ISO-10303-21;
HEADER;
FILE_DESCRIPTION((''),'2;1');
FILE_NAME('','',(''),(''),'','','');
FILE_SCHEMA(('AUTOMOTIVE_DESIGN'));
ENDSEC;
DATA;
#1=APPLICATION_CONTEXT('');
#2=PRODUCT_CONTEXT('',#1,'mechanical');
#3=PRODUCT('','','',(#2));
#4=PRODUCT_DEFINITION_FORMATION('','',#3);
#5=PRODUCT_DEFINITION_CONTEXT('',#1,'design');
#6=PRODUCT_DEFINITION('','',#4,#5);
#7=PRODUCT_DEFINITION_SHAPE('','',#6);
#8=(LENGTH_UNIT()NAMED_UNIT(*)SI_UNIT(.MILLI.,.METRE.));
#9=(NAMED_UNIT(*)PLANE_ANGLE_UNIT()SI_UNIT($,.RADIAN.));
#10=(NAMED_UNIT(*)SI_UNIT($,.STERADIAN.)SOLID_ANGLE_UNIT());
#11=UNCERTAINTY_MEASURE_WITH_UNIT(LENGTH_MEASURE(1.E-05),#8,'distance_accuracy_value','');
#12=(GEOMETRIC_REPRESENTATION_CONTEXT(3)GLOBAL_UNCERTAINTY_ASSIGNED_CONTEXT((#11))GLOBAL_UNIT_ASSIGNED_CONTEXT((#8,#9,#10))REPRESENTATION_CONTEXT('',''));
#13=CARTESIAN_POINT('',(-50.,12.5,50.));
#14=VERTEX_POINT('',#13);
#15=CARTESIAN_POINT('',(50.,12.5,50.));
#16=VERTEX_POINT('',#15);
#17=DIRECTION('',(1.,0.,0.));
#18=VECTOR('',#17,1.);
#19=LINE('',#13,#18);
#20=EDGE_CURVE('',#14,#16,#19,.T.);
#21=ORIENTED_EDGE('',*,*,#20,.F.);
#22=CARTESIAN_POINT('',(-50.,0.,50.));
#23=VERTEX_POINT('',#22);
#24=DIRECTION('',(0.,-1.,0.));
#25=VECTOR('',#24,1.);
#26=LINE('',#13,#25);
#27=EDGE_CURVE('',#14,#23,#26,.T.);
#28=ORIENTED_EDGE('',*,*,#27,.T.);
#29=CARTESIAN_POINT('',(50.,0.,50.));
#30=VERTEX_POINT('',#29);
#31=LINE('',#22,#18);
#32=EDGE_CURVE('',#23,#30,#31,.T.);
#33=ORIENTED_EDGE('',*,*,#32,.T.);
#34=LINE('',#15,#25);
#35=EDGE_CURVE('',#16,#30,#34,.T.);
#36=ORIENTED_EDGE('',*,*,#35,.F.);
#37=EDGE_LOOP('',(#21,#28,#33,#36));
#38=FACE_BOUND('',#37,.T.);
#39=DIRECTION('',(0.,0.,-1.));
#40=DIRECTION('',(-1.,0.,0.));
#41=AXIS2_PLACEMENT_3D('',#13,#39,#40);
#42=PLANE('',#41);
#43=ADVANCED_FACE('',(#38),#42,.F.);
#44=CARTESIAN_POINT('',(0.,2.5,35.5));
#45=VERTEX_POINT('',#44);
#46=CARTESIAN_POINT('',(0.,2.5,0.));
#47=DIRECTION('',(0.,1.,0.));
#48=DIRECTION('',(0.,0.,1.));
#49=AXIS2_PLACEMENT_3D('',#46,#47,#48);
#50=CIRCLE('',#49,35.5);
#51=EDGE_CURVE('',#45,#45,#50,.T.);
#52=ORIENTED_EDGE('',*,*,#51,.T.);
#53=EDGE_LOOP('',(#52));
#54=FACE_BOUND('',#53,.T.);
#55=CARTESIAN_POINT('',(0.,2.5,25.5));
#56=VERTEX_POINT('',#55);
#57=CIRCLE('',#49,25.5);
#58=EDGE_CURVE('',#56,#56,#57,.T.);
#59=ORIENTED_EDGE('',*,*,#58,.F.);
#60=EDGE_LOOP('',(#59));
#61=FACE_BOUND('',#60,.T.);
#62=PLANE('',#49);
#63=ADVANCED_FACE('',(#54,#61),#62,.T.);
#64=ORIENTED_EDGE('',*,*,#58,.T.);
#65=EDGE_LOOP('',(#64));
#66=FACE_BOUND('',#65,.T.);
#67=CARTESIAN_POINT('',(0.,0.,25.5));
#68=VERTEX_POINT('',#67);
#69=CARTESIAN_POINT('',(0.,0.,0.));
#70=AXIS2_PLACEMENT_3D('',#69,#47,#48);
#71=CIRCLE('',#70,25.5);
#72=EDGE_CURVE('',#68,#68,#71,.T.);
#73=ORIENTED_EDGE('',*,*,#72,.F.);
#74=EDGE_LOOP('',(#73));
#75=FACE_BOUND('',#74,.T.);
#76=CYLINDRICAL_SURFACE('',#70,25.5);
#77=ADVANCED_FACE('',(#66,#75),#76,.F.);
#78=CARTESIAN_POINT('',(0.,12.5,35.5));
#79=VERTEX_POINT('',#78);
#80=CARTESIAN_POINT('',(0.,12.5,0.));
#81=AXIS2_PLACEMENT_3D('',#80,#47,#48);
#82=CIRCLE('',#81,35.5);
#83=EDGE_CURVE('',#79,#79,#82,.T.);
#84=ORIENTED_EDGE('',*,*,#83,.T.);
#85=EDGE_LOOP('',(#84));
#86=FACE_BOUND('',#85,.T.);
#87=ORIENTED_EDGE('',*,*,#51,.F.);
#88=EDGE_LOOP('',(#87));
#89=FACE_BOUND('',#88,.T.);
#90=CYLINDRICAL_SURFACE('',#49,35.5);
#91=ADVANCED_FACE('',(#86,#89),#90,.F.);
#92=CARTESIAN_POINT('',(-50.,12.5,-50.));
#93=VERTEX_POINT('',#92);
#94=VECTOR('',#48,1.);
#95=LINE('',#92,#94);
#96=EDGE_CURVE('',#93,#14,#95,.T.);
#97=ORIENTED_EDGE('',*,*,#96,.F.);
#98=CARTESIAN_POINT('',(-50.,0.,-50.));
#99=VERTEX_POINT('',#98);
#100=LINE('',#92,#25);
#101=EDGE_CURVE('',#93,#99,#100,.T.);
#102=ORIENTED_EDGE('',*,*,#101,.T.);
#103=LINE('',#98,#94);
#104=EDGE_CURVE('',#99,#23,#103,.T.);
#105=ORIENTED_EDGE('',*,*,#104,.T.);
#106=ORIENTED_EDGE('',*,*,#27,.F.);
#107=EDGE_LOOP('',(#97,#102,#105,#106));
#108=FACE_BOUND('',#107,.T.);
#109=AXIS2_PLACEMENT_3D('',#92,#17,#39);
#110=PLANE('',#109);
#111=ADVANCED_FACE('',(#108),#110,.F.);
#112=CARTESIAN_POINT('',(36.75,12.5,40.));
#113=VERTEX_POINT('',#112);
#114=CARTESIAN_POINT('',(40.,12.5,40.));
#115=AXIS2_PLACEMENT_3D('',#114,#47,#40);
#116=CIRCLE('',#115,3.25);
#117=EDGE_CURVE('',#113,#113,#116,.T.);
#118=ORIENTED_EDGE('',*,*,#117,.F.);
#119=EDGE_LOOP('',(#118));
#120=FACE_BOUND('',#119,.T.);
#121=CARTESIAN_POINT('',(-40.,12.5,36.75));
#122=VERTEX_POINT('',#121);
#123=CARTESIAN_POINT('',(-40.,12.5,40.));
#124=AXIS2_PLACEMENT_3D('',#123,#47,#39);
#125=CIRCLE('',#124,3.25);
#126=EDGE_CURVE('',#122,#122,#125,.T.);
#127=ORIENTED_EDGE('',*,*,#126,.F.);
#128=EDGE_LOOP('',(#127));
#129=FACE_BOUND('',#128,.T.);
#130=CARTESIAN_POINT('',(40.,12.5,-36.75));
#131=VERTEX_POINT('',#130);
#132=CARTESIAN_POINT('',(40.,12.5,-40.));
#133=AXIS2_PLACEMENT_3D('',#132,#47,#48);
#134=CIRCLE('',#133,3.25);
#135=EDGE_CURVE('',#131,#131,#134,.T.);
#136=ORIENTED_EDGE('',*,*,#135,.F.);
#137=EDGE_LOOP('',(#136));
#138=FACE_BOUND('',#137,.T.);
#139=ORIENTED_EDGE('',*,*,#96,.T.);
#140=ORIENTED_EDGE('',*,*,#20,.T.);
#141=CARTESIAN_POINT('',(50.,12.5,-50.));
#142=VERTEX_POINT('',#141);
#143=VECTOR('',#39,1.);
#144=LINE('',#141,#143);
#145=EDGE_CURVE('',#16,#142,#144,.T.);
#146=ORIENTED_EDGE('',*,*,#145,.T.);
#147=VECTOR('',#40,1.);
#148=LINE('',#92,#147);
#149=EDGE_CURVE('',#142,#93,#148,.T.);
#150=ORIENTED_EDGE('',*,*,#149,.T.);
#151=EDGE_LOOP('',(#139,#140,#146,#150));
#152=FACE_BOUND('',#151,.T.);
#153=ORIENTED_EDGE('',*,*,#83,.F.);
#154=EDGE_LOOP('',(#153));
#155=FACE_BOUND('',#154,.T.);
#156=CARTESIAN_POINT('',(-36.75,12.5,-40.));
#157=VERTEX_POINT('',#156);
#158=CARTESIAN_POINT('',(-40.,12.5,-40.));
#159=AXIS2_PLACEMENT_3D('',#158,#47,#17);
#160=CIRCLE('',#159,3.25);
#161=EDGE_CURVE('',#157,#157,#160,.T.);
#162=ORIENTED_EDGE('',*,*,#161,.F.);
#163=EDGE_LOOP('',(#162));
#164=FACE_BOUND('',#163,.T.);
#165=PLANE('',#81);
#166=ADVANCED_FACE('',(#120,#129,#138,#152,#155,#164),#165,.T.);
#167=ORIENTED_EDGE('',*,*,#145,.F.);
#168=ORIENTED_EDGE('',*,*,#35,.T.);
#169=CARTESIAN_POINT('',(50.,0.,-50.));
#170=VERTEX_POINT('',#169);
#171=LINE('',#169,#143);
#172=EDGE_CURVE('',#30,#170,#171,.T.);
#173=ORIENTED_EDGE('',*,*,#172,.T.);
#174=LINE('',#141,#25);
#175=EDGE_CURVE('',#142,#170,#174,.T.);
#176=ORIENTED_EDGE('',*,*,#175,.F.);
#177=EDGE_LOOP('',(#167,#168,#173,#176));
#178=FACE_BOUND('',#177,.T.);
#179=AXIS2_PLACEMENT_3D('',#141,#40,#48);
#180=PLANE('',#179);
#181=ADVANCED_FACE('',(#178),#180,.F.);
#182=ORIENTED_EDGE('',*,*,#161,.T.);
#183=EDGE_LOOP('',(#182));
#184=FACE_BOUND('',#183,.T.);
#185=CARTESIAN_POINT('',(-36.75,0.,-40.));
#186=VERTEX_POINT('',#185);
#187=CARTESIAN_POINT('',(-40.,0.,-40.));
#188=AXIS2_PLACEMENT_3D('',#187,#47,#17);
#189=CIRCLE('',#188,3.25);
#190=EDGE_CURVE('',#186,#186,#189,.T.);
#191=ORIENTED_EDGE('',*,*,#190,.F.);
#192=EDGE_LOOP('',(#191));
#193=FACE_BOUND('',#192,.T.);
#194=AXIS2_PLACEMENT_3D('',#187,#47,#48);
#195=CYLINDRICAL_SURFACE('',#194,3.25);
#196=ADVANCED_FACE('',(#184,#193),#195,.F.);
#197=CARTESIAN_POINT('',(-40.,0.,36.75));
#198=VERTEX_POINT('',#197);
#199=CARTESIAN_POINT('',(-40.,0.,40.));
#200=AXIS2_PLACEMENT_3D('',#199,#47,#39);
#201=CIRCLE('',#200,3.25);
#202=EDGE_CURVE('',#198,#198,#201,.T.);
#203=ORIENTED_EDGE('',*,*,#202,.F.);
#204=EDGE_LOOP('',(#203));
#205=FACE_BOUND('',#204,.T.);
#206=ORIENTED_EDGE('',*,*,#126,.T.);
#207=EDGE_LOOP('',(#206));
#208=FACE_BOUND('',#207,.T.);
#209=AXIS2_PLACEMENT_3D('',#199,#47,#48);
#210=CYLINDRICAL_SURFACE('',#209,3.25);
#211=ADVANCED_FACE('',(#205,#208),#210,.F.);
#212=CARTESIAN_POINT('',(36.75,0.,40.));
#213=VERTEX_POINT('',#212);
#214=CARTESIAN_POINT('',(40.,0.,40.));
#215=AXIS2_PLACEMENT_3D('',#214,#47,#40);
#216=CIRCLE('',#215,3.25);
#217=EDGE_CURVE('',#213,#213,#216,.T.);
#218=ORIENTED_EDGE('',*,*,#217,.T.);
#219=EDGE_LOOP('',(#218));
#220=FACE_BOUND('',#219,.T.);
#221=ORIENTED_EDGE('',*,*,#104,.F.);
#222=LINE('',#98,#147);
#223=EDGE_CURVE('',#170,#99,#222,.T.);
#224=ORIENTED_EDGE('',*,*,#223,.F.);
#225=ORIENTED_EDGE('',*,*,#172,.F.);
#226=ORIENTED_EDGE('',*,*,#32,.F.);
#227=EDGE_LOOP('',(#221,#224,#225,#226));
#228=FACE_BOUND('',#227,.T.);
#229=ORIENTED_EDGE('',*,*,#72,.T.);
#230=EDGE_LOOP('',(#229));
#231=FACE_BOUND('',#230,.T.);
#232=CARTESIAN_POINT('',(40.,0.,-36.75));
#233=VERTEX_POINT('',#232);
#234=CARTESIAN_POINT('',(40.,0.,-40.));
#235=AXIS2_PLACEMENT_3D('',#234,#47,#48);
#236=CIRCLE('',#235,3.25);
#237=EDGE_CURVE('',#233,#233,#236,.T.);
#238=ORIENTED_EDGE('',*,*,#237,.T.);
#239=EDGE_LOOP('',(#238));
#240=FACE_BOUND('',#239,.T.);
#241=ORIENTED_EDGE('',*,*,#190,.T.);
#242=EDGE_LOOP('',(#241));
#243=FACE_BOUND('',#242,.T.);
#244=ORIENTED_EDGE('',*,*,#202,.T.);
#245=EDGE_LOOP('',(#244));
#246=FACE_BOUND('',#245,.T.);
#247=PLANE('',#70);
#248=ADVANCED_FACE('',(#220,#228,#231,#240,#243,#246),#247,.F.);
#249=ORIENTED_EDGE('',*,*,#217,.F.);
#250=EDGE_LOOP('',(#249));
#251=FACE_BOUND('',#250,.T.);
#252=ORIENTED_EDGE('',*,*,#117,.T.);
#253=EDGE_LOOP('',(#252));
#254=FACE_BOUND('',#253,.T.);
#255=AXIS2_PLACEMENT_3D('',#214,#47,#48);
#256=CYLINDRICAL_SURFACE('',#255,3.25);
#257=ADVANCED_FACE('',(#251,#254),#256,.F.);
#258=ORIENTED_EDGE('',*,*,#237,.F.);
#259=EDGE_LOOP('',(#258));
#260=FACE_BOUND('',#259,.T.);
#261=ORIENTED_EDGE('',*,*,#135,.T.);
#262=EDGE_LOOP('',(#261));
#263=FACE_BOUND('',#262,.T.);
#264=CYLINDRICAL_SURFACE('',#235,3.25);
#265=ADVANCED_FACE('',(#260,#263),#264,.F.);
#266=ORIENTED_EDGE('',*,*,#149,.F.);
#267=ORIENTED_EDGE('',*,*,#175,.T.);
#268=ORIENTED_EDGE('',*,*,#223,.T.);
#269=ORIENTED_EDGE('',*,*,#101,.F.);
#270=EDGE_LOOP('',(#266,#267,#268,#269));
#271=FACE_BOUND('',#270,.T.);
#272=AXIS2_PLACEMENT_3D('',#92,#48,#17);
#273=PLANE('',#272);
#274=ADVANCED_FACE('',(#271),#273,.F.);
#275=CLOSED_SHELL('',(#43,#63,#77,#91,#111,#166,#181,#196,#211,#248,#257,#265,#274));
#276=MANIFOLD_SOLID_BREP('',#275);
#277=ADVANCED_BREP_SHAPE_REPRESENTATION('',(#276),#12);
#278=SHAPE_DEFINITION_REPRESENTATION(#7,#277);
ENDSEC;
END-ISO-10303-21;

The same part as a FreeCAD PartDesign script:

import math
import FreeCAD as App
import Part
import Sketcher
from FreeCAD import Vector


def add_polygon(sketch, points):
    """Adds a closed chain of lines whose ends are joined by coincident constraints."""
    first, n = sketch.GeometryCount, len(points)
    for a, b in zip(points, points[1:] + points[:1]):
        sketch.addGeometry(Part.LineSegment(App.Vector(*a, 0), App.Vector(*b, 0)), False)
    for i in range(n):
        sketch.addConstraint(Sketcher.Constraint("Coincident", first + i, 2, first + (i + 1) % n, 1))

doc = App.newDocument("Part")
body = doc.addObject("PartDesign::Body", "Body")

sketch1 = body.newObject("Sketcher::SketchObject", "Sketch")
sketch1.AttachmentSupport = (doc.getObject("XZ_Plane"), [""])
sketch1.MapMode = "FlatFace"
add_polygon(sketch1, [(-50, -50), (-50, 50), (50, 50), (50, -50)])
sketch1.addConstraint([
    Sketcher.Constraint("Vertical", 0),
    Sketcher.Constraint("Horizontal", 1),
    Sketcher.Constraint("Vertical", 2),
    Sketcher.Constraint("Horizontal", 3),
    Sketcher.Constraint("Symmetric", 0, 2, 2, 2, -1, 1),
    Sketcher.Constraint("Equal", 3, 0),
    Sketcher.Constraint("DistanceX", 1, 1, 1, 2, 100.0),
])
pad1 = body.newObject("PartDesign::Pad", "Pad")
pad1.Profile = sketch1
pad1.Length = 12.5
pad1.Reversed = True

sketch2 = body.newObject("Sketcher::SketchObject", "Sketch001")
sketch2.AttachmentSupport = (doc.getObject("XZ_Plane"), [""])
sketch2.MapMode = "FlatFace"
sketch2.AttachmentOffset = App.Placement(Vector(0, 0, -12.5), App.Rotation())
sketch2.addGeometry(Part.Circle(Vector(0, 0, 0), Vector(0, 0, 1), 36), False)
sketch2.addConstraint([
    Sketcher.Constraint("Coincident", 0, 3, -1, 1),
    Sketcher.Constraint("Diameter", 0, 71.0),
])
pocket1 = body.newObject("PartDesign::Pocket", "Pocket")
pocket1.Profile = sketch2
pocket1.Length = 10
pocket1.Reversed = True

sketch3 = body.newObject("Sketcher::SketchObject", "Sketch002")
sketch3.AttachmentSupport = (doc.getObject("XZ_Plane"), [""])
sketch3.MapMode = "FlatFace"
sketch3.AttachmentOffset = App.Placement(Vector(0, 0, -2.5), App.Rotation())
sketch3.addGeometry(Part.Circle(Vector(0, 0, 0), Vector(0, 0, 1), 26), False)
sketch3.addConstraint([
    Sketcher.Constraint("Coincident", 0, 3, -1, 1),
    Sketcher.Constraint("Diameter", 0, 51.0),
])
pocket2 = body.newObject("PartDesign::Pocket", "Pocket001")
pocket2.Profile = sketch3
pocket2.Type = "ThroughAll"
pocket2.Reversed = True

sketch4 = body.newObject("Sketcher::SketchObject", "Sketch003")
sketch4.AttachmentSupport = (doc.getObject("XZ_Plane"), [""])
sketch4.MapMode = "FlatFace"
sketch4.AttachmentOffset = App.Placement(Vector(0, 0, -12.5), App.Rotation())
sketch4.addGeometry([
    Part.ArcOfCircle(Part.Circle(Vector(40, -40, 0), Vector(0, 0, 1), 3.2), math.radians(90), math.radians(180)),
    Part.ArcOfCircle(Part.Circle(Vector(40, -40, 0), Vector(0, 0, 1), 3.2), math.radians(0), math.radians(90)),
    Part.ArcOfCircle(Part.Circle(Vector(40, -40, 0), Vector(0, 0, 1), 3.2), math.radians(180), math.radians(360)),
], False)
sketch4.addConstraint([
    Sketcher.Constraint("Tangent", 0, 1, 1, 2),
    Sketcher.Constraint("Tangent", 1, 1, 2, 2),
    Sketcher.Constraint("Tangent", 2, 1, 0, 2),
    Sketcher.Constraint("Horizontal", 2, 3, 1, 1),
    Sketcher.Constraint("Horizontal", 1, 1, 2, 1),
    Sketcher.Constraint("Vertical", 2, 3, 0, 1),
    Sketcher.Constraint("Radius", 0, 3.25),
    Sketcher.Constraint("DistanceX", -1, 1, 0, 3, 40.0),
    Sketcher.Constraint("DistanceY", 0, 3, -1, 1, 40.0),
])
pocket3 = body.newObject("PartDesign::Pocket", "Pocket002")
pocket3.Profile = sketch4
pocket3.Type = "ThroughAll"
pocket3.Reversed = True
doc.recompute()

polarpattern = body.newObject("PartDesign::PolarPattern", "PolarPattern")
polarpattern.Originals = [pocket3]
polarpattern.Axis = (doc.getObject("Y_Axis"), [""])
polarpattern.Angle = 360
polarpattern.Occurrences = 4
body.Tip = polarpattern

doc.recompute()
